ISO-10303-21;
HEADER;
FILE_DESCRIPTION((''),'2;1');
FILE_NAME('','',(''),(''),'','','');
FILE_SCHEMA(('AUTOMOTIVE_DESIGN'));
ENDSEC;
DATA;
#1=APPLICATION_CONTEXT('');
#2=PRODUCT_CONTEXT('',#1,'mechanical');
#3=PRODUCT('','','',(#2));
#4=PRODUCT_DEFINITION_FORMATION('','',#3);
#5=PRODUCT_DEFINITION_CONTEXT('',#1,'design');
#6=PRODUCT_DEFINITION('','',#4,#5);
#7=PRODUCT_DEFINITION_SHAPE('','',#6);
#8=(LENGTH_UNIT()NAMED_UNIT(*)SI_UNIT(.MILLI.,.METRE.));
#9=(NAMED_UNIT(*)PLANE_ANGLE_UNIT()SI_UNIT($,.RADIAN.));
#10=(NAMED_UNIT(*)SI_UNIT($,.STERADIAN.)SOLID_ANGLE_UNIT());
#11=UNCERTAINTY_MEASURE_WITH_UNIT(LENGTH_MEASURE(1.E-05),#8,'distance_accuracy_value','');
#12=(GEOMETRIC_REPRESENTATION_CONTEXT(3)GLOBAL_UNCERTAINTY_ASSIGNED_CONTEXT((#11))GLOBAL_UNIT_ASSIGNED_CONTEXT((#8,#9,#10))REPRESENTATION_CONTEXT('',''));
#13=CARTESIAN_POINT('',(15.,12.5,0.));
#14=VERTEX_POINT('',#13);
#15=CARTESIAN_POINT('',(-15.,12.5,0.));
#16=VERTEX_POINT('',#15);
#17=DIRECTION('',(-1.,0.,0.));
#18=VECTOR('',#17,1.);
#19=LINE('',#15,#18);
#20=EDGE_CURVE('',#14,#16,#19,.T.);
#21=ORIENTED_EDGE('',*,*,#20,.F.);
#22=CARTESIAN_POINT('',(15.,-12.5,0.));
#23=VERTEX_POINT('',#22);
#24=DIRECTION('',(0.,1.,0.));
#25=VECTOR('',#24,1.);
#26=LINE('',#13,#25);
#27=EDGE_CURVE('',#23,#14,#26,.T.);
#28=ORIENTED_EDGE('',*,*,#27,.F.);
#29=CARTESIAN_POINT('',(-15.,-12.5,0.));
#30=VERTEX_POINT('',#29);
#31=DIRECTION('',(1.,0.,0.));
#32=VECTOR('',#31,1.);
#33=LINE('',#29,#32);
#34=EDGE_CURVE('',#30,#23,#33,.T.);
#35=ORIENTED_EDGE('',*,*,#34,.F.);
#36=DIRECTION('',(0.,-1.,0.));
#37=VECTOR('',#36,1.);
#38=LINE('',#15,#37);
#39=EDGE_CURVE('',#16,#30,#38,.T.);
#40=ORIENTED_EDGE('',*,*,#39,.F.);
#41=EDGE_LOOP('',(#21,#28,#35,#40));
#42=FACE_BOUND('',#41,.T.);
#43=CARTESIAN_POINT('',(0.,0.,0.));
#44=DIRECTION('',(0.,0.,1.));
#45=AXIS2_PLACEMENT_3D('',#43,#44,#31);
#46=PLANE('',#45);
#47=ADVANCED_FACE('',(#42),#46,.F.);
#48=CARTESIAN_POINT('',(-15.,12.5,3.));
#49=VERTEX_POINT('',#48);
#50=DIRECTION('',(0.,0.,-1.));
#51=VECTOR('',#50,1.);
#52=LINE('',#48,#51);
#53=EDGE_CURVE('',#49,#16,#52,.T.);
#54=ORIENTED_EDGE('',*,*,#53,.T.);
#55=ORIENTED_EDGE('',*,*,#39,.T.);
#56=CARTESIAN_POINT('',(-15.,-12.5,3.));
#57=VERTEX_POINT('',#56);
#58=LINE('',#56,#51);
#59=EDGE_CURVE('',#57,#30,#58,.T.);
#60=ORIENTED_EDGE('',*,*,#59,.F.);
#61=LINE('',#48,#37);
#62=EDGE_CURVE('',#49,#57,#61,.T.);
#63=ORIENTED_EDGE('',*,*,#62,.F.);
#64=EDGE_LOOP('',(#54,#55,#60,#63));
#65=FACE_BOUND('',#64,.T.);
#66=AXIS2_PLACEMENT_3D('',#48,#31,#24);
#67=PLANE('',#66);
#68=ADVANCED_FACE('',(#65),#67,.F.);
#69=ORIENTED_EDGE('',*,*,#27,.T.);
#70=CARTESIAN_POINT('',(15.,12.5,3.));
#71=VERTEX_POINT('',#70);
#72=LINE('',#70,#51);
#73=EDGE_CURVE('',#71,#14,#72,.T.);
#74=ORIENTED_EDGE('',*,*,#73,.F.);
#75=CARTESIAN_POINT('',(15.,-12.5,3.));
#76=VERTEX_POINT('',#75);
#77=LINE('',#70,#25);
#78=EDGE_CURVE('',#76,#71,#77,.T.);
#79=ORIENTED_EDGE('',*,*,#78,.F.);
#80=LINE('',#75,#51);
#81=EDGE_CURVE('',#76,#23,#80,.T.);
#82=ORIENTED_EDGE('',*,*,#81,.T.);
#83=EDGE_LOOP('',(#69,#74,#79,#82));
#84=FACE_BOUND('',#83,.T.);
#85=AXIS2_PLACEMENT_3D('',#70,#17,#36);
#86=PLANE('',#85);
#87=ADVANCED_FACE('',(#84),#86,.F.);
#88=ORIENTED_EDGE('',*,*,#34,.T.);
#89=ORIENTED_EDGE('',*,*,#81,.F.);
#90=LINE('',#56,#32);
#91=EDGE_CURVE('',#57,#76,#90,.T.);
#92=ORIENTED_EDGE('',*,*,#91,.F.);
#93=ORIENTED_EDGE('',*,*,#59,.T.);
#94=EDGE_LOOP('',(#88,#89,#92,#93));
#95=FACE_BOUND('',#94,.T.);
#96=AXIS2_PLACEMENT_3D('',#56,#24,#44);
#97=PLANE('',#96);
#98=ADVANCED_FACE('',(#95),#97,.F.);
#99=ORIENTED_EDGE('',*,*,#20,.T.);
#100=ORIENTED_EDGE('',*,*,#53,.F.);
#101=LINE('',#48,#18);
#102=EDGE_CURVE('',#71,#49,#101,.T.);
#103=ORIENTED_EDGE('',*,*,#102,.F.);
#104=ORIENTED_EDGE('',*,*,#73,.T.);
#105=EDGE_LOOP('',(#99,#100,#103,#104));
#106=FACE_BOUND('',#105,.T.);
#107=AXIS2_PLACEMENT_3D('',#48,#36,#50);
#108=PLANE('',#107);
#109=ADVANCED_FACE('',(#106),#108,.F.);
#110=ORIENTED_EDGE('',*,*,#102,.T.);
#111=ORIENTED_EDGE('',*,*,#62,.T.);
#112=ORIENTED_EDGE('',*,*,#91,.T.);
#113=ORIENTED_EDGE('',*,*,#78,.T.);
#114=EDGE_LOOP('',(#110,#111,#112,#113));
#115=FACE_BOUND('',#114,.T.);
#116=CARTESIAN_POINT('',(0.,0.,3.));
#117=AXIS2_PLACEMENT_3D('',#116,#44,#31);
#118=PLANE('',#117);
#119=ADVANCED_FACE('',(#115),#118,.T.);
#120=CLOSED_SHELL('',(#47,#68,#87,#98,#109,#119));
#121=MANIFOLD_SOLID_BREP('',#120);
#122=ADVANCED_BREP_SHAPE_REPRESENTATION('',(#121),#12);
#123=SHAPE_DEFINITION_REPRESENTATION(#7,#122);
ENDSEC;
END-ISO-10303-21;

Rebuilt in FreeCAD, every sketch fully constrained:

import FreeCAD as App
import Part
import Sketcher
from FreeCAD import Vector
Q = App.Units.Quantity

doc = App.newDocument("Part")
body = doc.addObject("PartDesign::Body", "Body")

# Sketch on XY plane
sketch1 = body.newObject("Sketcher::SketchObject", "Sketch")
sketch1.AttachmentSupport = (doc.getObject("XY_Plane"), [""])
sketch1.MapMode = "FlatFace"
sketch1.addGeometry([
    Part.LineSegment(Vector(-15, 12, 0), Vector(-15, -12, 0)),
    Part.LineSegment(Vector(-15, -12, 0), Vector(15, -12, 0)),
    Part.LineSegment(Vector(15, -12, 0), Vector(15, 12, 0)),
    Part.LineSegment(Vector(15, 12, 0), Vector(-15, 12, 0)),
], False)
sketch1.addConstraint([
    Sketcher.Constraint("Coincident", 0, 2, 1, 1),
    Sketcher.Constraint("Coincident", 1, 2, 2, 1),
    Sketcher.Constraint("Coincident", 2, 2, 3, 1),
    Sketcher.Constraint("Coincident", 3, 2, 0, 1),
    Sketcher.Constraint("Vertical", 0),
    Sketcher.Constraint("Horizontal", 1),
    Sketcher.Constraint("Vertical", 2),
    Sketcher.Constraint("Horizontal", 3),
    Sketcher.Constraint("Symmetric", 0, 2, 2, 2, -1, 1),
    Sketcher.Constraint("DistanceX", 1, 1, 1, 2, Q("30 mm")),
    Sketcher.Constraint("DistanceY", 0, 2, 0, 1, Q("25 mm")),
])
pad1 = body.newObject("PartDesign::Pad", "Pad")
pad1.Profile = sketch1
pad1.Length = 3

doc.recompute()
